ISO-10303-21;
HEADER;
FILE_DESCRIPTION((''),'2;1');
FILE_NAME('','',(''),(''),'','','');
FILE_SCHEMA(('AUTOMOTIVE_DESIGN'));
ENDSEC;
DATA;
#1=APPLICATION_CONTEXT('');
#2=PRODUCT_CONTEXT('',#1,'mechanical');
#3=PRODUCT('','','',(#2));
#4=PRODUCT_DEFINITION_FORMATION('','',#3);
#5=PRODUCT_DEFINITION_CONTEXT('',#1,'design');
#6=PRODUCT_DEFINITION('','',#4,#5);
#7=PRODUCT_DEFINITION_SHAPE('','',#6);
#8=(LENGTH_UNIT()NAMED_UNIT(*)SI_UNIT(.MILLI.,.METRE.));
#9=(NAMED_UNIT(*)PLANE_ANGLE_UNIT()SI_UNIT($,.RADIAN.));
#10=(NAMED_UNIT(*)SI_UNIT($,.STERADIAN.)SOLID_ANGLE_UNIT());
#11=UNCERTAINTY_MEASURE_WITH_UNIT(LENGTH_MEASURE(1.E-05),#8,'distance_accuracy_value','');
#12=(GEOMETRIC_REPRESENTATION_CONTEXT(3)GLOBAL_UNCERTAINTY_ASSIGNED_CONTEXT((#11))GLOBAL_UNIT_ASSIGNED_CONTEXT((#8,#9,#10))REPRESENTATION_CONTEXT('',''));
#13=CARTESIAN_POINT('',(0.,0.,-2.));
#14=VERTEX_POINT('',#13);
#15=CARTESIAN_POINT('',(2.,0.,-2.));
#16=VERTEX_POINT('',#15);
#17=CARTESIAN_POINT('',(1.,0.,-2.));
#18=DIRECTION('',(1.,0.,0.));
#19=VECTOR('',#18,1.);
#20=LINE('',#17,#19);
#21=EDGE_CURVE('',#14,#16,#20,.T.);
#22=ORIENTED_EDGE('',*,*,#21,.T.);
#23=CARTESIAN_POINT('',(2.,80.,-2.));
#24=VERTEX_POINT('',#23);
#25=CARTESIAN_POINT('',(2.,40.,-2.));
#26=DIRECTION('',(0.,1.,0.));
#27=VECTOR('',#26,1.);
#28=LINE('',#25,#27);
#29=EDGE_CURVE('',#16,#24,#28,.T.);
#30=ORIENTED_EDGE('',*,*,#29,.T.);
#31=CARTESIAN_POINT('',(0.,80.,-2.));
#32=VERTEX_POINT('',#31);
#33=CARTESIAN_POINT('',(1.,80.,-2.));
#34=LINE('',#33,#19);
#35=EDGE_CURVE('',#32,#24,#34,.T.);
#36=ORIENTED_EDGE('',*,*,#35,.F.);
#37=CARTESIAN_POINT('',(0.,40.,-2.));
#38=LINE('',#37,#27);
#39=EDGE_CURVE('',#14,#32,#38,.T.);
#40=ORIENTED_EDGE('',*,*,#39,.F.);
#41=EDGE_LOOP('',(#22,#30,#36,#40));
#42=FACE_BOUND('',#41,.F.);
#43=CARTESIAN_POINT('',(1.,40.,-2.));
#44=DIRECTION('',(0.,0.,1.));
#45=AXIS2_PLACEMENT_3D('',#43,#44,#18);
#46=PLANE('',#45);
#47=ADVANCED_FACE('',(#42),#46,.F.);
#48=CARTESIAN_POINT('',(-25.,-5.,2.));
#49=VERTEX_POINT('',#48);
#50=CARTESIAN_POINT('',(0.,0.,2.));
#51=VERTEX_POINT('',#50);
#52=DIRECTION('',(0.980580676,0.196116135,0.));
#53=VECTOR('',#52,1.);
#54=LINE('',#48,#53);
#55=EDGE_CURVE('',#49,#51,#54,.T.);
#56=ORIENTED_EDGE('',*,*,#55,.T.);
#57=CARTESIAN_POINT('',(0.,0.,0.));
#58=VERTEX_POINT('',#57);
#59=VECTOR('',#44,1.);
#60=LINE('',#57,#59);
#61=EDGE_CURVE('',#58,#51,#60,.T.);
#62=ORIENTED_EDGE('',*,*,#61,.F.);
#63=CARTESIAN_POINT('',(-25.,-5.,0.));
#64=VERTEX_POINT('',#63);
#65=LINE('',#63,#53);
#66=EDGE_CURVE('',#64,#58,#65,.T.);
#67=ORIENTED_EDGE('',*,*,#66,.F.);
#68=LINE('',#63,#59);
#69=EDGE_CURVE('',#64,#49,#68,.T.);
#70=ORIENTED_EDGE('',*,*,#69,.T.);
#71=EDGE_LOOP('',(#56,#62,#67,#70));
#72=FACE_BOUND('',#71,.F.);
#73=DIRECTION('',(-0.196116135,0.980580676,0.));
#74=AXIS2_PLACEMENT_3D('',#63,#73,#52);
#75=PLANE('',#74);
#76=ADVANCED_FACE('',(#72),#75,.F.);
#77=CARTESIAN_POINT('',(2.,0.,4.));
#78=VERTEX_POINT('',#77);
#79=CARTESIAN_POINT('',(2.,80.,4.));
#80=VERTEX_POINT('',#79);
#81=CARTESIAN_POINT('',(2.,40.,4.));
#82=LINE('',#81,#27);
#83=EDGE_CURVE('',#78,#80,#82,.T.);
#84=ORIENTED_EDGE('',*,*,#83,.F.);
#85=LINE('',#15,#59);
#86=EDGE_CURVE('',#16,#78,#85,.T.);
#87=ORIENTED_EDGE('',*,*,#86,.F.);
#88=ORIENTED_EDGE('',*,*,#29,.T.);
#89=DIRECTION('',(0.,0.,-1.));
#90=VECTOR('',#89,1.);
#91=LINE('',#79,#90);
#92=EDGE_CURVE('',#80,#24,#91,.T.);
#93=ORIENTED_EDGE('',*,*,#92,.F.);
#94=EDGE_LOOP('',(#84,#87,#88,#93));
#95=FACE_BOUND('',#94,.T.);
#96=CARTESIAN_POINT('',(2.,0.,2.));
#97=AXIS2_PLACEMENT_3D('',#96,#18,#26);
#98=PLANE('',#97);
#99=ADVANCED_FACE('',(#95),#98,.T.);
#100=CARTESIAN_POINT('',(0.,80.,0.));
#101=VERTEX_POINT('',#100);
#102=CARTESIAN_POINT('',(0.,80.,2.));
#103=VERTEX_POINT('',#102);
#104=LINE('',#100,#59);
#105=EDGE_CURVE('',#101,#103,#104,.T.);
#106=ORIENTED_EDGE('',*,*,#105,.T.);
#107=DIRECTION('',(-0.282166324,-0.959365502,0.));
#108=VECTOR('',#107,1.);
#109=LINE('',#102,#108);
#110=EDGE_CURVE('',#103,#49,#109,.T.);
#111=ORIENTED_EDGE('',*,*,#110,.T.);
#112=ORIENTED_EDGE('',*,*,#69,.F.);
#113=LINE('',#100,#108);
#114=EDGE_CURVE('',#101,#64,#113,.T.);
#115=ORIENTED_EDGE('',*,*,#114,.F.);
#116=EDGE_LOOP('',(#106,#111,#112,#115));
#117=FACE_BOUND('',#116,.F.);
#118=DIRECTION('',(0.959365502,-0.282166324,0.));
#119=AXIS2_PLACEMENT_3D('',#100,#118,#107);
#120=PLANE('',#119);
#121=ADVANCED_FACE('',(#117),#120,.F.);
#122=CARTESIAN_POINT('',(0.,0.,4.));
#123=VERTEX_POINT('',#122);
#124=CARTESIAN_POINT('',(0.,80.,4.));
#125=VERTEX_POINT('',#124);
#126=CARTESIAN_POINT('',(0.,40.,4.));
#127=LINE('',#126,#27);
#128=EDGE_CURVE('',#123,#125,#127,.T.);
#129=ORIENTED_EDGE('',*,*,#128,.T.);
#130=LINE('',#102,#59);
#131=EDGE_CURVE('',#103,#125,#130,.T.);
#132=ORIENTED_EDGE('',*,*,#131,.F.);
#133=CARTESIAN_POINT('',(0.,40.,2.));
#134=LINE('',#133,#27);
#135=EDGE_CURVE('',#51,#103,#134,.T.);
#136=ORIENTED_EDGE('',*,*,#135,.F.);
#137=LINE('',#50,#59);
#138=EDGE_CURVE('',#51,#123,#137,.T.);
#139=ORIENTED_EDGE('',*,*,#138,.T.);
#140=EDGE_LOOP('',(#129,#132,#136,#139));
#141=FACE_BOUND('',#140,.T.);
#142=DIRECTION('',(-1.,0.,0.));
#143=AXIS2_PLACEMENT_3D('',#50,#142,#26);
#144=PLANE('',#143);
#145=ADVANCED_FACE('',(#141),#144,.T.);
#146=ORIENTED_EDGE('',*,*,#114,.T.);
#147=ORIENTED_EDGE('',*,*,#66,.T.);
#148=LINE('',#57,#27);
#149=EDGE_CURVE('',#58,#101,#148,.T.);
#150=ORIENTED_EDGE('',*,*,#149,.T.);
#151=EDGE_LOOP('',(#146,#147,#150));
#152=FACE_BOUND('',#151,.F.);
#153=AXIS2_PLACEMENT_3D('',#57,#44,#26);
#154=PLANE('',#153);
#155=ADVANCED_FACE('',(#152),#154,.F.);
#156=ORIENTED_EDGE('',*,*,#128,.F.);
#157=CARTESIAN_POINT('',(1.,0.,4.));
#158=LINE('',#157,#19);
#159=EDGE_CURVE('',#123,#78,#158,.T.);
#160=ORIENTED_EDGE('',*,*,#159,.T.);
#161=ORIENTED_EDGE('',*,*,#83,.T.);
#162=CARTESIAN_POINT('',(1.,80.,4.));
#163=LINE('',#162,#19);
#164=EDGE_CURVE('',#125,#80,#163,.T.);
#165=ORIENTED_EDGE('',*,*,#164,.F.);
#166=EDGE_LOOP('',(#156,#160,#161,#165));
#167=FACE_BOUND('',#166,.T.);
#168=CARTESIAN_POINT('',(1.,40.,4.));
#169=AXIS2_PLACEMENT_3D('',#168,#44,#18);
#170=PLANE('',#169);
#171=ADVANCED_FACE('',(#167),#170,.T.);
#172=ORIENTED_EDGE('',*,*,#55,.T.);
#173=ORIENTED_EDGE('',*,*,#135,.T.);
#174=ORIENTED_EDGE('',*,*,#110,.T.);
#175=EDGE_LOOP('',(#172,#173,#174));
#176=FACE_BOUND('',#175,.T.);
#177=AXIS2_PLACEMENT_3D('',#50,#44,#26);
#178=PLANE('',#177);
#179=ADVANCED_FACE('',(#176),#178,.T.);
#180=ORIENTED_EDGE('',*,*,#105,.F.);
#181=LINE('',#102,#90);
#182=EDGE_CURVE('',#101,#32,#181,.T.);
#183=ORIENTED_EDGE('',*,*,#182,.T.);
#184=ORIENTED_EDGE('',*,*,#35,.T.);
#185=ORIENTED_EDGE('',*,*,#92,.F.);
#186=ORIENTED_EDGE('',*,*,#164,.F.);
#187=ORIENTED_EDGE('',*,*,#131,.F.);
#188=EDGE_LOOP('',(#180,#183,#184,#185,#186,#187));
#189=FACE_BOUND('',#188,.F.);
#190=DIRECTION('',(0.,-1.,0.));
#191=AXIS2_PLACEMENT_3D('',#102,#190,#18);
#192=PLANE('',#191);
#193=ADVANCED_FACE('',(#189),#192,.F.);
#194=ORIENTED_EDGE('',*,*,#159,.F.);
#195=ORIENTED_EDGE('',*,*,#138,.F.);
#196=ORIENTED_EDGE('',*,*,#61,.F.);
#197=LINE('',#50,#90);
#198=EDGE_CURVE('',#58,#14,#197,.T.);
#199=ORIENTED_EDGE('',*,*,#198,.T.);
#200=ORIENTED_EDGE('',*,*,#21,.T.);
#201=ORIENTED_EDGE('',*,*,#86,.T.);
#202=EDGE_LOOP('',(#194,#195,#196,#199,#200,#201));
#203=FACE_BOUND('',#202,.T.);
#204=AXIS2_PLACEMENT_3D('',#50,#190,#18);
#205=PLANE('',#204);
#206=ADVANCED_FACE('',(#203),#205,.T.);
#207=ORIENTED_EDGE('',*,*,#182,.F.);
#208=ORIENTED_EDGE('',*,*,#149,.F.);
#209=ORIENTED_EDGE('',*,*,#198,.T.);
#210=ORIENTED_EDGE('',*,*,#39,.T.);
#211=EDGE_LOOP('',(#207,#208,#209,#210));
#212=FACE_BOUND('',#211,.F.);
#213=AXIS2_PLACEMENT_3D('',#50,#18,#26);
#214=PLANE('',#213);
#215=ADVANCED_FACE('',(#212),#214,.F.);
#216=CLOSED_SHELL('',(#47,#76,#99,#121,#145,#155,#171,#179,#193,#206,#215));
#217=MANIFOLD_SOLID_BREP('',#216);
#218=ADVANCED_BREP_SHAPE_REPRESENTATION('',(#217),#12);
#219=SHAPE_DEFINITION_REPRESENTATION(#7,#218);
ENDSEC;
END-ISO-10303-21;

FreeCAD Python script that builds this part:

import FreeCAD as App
import Part
import Sketcher

doc = App.newDocument("Part")
params = doc.addObject("Spreadsheet::Sheet", "Params")
for row, (alias, value) in enumerate([
    ("sketch1_height", "80 mm"),
    ("pad1_length", "2 mm"),
    ("sketch2_width", "80 mm"),
    ("sketch2_height", "2 mm"),
    ("pad2_length", "2 mm"),
    ("sketch3_width", "2 mm"),
    ("sketch3_height", "80 mm"),
    ("pad3_length", "2 mm"),
    ("sketch4_width", "2 mm"),
    ("sketch4_height", "80 mm"),
    ("pad4_length", "4 mm"),
], start=1):
    params.set(f"A{row}", alias)
    params.set(f"B{row}", "=" + value)
    params.setAlias(f"B{row}", alias)

body = doc.addObject("PartDesign::Body", "Body")

sketch1 = body.newObject("Sketcher::SketchObject", "Sketch")
sketch1.AttachmentSupport = (doc.getObject("XY_Plane"), [""])
sketch1.MapMode = "FlatFace"
sketch1.addGeometry([
    Part.LineSegment(App.Vector(-25, -5, 0), App.Vector(0, 0, 0)),
    Part.LineSegment(App.Vector(0, 0, 0), App.Vector(0, 80, 0)),
    Part.LineSegment(App.Vector(0, 80, 0), App.Vector(-25, -5, 0)),
], False)
sketch1.addConstraint([
    Sketcher.Constraint("Coincident", 0, 2, 1, 1),
    Sketcher.Constraint("Coincident", 1, 2, 2, 1),
    Sketcher.Constraint("Coincident", 2, 2, 0, 1),
    Sketcher.Constraint("Vertical", 1),
    Sketcher.Constraint("Coincident", 0, 2, -1, 1),
    Sketcher.Constraint("DistanceY", 1, 1, 1, 2, 80.0),
    Sketcher.Constraint("DistanceX", 2, 2, -1, 1, 25.0),
    Sketcher.Constraint("DistanceY", 2, 2, -1, 1, 5.0),
])
sketch1.setExpression("Constraints[5]", "Params.sketch1_height")
pad1 = body.newObject("PartDesign::Pad", "Pad")
pad1.Profile = sketch1
pad1.setExpression("Length", "Params.pad1_length")

sketch2 = body.newObject("Sketcher::SketchObject", "Sketch001")
sketch2.AttachmentSupport = (doc.getObject("YZ_Plane"), [""])
sketch2.MapMode = "FlatFace"
sketch2.addGeometry([
    Part.LineSegment(App.Vector(0, 2, 0), App.Vector(0, 0, 0)),
    Part.LineSegment(App.Vector(0, 0, 0), App.Vector(80, 0, 0)),
    Part.LineSegment(App.Vector(80, 0, 0), App.Vector(80, 2, 0)),
    Part.LineSegment(App.Vector(80, 2, 0), App.Vector(0, 2, 0)),
], False)
sketch2.addConstraint([
    Sketcher.Constraint("Coincident", 0, 2, 1, 1),
    Sketcher.Constraint("Coincident", 1, 2, 2, 1),
    Sketcher.Constraint("Coincident", 2, 2, 3, 1),
    Sketcher.Constraint("Coincident", 3, 2, 0, 1),
    Sketcher.Constraint("Vertical", 0),
    Sketcher.Constraint("Horizontal", 1),
    Sketcher.Constraint("Vertical", 2),
    Sketcher.Constraint("Horizontal", 3),
    Sketcher.Constraint("Coincident", 0, 2, -1, 1),
    Sketcher.Constraint("DistanceX", 1, 1, 1, 2, 80.0),
    Sketcher.Constraint("DistanceY", 0, 2, 0, 1, 2.0),
])
sketch2.setExpression("Constraints[9]", "Params.sketch2_width")
sketch2.setExpression("Constraints[10]", "Params.sketch2_height")
pad2 = body.newObject("PartDesign::Pad", "Pad001")
pad2.Profile = sketch2
pad2.setExpression("Length", "Params.pad2_length")

sketch3 = body.newObject("Sketcher::SketchObject", "Sketch002")
sketch3.AttachmentSupport = (doc.getObject("XY_Plane"), [""])
sketch3.MapMode = "FlatFace"
sketch3.AttachmentOffset = App.Placement(App.Vector(0, 0, 2), App.Rotation())
sketch3.addGeometry([
    Part.LineSegment(App.Vector(0, 80, 0), App.Vector(0, 0, 0)),
    Part.LineSegment(App.Vector(0, 0, 0), App.Vector(2, 0, 0)),
    Part.LineSegment(App.Vector(2, 0, 0), App.Vector(2, 80, 0)),
    Part.LineSegment(App.Vector(2, 80, 0), App.Vector(0, 80, 0)),
], False)
sketch3.addConstraint([
    Sketcher.Constraint("Coincident", 0, 2, 1, 1),
    Sketcher.Constraint("Coincident", 1, 2, 2, 1),
    Sketcher.Constraint("Coincident", 2, 2, 3, 1),
    Sketcher.Constraint("Coincident", 3, 2, 0, 1),
    Sketcher.Constraint("Vertical", 0),
    Sketcher.Constraint("Horizontal", 1),
    Sketcher.Constraint("Vertical", 2),
    Sketcher.Constraint("Horizontal", 3),
    Sketcher.Constraint("Coincident", 0, 2, -1, 1),
    Sketcher.Constraint("DistanceX", 1, 1, 1, 2, 2.0),
    Sketcher.Constraint("DistanceY", 0, 2, 0, 1, 80.0),
])
sketch3.setExpression("Constraints[9]", "Params.sketch3_width")
sketch3.setExpression("Constraints[10]", "Params.sketch3_height")
pad3 = body.newObject("PartDesign::Pad", "Pad002")
pad3.Profile = sketch3
pad3.setExpression("Length", "Params.pad3_length")

sketch4 = body.newObject("Sketcher::SketchObject", "Sketch003")
sketch4.AttachmentSupport = (doc.getObject("XY_Plane"), [""])
sketch4.MapMode = "FlatFace"
sketch4.AttachmentOffset = App.Placement(App.Vector(0, 0, 2), App.Rotation())
sketch4.addGeometry([
    Part.LineSegment(App.Vector(0, 80, 0), App.Vector(0, 0, 0)),
    Part.LineSegment(App.Vector(0, 0, 0), App.Vector(2, 0, 0)),
    Part.LineSegment(App.Vector(2, 0, 0), App.Vector(2, 80, 0)),
    Part.LineSegment(App.Vector(2, 80, 0), App.Vector(0, 80, 0)),
], False)
sketch4.addConstraint([
    Sketcher.Constraint("Coincident", 0, 2, 1, 1),
    Sketcher.Constraint("Coincident", 1, 2, 2, 1),
    Sketcher.Constraint("Coincident", 2, 2, 3, 1),
    Sketcher.Constraint("Coincident", 3, 2, 0, 1),
    Sketcher.Constraint("Vertical", 0),
    Sketcher.Constraint("Horizontal", 1),
    Sketcher.Constraint("Vertical", 2),
    Sketcher.Constraint("Horizontal", 3),
    Sketcher.Constraint("Coincident", 0, 2, -1, 1),
    Sketcher.Constraint("DistanceX", 1, 1, 1, 2, 2.0),
    Sketcher.Constraint("DistanceY", 0, 2, 0, 1, 80.0),
])
sketch4.setExpression("Constraints[9]", "Params.sketch4_width")
sketch4.setExpression("Constraints[10]", "Params.sketch4_height")
pad4 = body.newObject("PartDesign::Pad", "Pad003")
pad4.Profile = sketch4
pad4.setExpression("Length", "Params.pad4_length")
pad4.Reversed = True

doc.recompute()
